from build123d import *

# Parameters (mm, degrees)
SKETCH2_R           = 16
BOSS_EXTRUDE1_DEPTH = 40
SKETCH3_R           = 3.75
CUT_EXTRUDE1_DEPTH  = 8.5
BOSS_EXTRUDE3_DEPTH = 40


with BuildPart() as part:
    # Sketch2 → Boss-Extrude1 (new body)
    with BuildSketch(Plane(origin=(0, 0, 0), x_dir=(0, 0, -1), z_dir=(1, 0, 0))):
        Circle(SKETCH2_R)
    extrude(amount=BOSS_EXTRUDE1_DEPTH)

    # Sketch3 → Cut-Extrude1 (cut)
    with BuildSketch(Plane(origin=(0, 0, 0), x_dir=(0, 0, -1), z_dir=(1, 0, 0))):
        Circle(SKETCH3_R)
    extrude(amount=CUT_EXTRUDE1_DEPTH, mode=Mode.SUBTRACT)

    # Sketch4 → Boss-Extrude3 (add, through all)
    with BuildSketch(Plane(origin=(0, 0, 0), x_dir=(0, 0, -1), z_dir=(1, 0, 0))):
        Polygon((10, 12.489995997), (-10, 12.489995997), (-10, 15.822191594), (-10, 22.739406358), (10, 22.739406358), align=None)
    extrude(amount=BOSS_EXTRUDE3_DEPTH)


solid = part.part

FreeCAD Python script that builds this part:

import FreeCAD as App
import Part
import Sketcher
Q = App.Units.Quantity


def add_polygon(sketch, points):
    """Adds a closed chain of lines whose ends are joined by coincident constraints."""
    first, n = sketch.GeometryCount, len(points)
    for a, b in zip(points, points[1:] + points[:1]):
        sketch.addGeometry(Part.LineSegment(App.Vector(*a, 0), App.Vector(*b, 0)), False)
    for i in range(n):
        sketch.addConstraint(Sketcher.Constraint("Coincident", first + i, 2, first + (i + 1) % n, 1))

doc = App.newDocument("Part")
params = doc.addObject("Spreadsheet::Sheet", "Params")
for row, (alias, value) in enumerate([
    ("sketch1_diameter", "32 mm"),
    ("pad1_length", "40 mm"),
    ("sketch2_diameter", "7.5 mm"),
    ("pocket1_length", "8.5 mm"),
    ("sketch3_height", "20 mm"),
    ("pad2_length", "40 mm"),
], start=1):
    params.set(f"A{row}", alias)
    params.set(f"B{row}", "=" + value)
    params.setAlias(f"B{row}", alias)

body = doc.addObject("PartDesign::Body", "Body")

# Sketch on YZ plane
sketch1 = doc.addObject("Sketcher::SketchObject", "Sketch")
body.addObject(sketch1)
sketch1.AttachmentSupport = (doc.YZ_Plane, [""])
sketch1.MapMode = "FlatFace"
sketch1.addGeometry(Part.Circle(App.Vector(0, 0, 0), App.Vector(0, 0, 1), 16), False)
sketch1.addConstraint([
    Sketcher.Constraint("Coincident", 0, 3, -1, 1),
    Sketcher.Constraint("Diameter", 0, Q("32 mm")),
])
sketch1.setExpression("Constraints[1]", "Params.sketch1_diameter")
pad1 = doc.addObject("PartDesign::Pad", "Pad")
body.addObject(pad1)
pad1.Profile = sketch1
pad1.setExpression("Length", "Params.pad1_length")

# Sketch on YZ plane
sketch2 = doc.addObject("Sketcher::SketchObject", "Sketch001")
body.addObject(sketch2)
sketch2.AttachmentSupport = (doc.YZ_Plane, [""])
sketch2.MapMode = "FlatFace"
sketch2.addGeometry(Part.Circle(App.Vector(0, 0, 0), App.Vector(0, 0, 1), 3.8), False)
sketch2.addConstraint([
    Sketcher.Constraint("Coincident", 0, 3, -1, 1),
    Sketcher.Constraint("Diameter", 0, Q("7.5 mm")),
])
sketch2.setExpression("Constraints[1]", "Params.sketch2_diameter")
pocket1 = doc.addObject("PartDesign::Pocket", "Pocket")
body.addObject(pocket1)
pocket1.Profile = sketch2
pocket1.setExpression("Length", "Params.pocket1_length")
pocket1.Reversed = True

# Sketch on YZ plane
sketch3 = doc.addObject("Sketcher::SketchObject", "Sketch002")
body.addObject(sketch3)
sketch3.AttachmentSupport = (doc.YZ_Plane, [""])
sketch3.MapMode = "FlatFace"
add_polygon(sketch3, [(12, 10), (12, -10), (23, -10), (23, 10)])  # lines 0-3
sketch3.addConstraint([
    Sketcher.Constraint("Vertical", 0),
    Sketcher.Constraint("Horizontal", 1),
    Sketcher.Constraint("Vertical", 2),
    Sketcher.Constraint("Horizontal", 3),
    Sketcher.Constraint("DistanceY", 0, 2, 0, 1, Q("20 mm")),
    Sketcher.Constraint("DistanceY", 0, 2, -1, 1, Q("10 mm")),
    Sketcher.Constraint("DistanceX", 1, 1, 1, 2, Q("10.24941 mm")),
    Sketcher.Constraint("DistanceX", -1, 1, 0, 2, Q("12.489996 mm")),
])
sketch3.setExpression("Constraints[8]", "Params.sketch3_height")
pad2 = doc.addObject("PartDesign::Pad", "Pad001")
body.addObject(pad2)
pad2.Profile = sketch3
pad2.setExpression("Length", "Params.pad2_length")

doc.recompute()
